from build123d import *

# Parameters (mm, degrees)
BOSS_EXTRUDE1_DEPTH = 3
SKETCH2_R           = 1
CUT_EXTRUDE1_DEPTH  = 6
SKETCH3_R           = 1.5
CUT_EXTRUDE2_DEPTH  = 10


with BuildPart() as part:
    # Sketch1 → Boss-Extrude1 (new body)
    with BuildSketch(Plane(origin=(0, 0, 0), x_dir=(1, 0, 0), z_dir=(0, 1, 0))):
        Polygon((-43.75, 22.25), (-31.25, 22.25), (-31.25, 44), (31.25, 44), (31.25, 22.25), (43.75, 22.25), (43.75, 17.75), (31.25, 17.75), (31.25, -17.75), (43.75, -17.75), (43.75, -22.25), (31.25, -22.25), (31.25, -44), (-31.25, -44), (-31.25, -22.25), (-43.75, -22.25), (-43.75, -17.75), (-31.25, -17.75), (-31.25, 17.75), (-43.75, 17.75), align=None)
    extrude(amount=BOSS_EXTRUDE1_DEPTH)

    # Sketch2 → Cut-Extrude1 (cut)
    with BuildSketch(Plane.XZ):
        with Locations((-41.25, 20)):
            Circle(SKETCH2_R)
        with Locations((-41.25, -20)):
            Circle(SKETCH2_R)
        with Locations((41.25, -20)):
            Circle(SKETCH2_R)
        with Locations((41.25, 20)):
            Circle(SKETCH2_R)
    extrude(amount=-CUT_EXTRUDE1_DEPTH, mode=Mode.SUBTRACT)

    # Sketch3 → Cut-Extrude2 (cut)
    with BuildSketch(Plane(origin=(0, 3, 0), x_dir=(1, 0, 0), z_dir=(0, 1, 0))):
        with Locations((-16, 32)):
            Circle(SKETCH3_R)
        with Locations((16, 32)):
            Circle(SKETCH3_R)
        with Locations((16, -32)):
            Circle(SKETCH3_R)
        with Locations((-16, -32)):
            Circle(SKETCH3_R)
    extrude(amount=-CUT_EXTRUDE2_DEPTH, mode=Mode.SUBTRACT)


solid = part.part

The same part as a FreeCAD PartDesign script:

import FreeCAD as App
import Part
import Sketcher
from FreeCAD import Vector


def add_polygon(sketch, points):
    """Adds a closed chain of lines whose ends are joined by coincident constraints."""
    first, n = sketch.GeometryCount, len(points)
    for a, b in zip(points, points[1:] + points[:1]):
        sketch.addGeometry(Part.LineSegment(App.Vector(*a, 0), App.Vector(*b, 0)), False)
    for i in range(n):
        sketch.addConstraint(Sketcher.Constraint("Coincident", first + i, 2, first + (i + 1) % n, 1))

doc = App.newDocument("Part")
params = doc.addObject("Spreadsheet::Sheet", "Params")
for row, (alias, value) in enumerate([
    ("sketch1_width", "12.5 mm"),
    ("sketch1_width2", "62.5 mm"),
    ("sketch1_height", "4.5 mm"),
    ("sketch1_height2", "35.5 mm"),
    ("pad1_length", "3 mm"),
    ("sketch2_diameter", "2 mm"),
    ("pocket1_length", "6 mm"),
    ("sketch3_diameter", "3 mm"),
    ("pocket2_length", "10 mm"),
], start=1):
    params.set(f"A{row}", alias)
    params.set(f"B{row}", "=" + value)
    params.setAlias(f"B{row}", alias)

body = doc.addObject("PartDesign::Body", "Body")

# Sketch on XZ plane
sketch1 = body.newObject("Sketcher::SketchObject", "Sketch")
sketch1.AttachmentSupport = (doc.getObject("XZ_Plane"), [""])
sketch1.MapMode = "FlatFace"
add_polygon(sketch1, [(-31.2, -22.2), (-43.8, -22.2), (-43.8, -17.8), (-31.2, -17.8), (-31.2, 17.8), (-43.8, 17.8), (-43.8, 22.2), (-31.2, 22.2), (-31.2, 44), (31.2, 44), (31.2, 22.2), (43.8, 22.2), (43.8, 17.8), (31.2, 17.8), (31.2, -17.8), (43.8, -17.8), (43.8, -22.2), (31.2, -22.2), (31.2, -44), (-31.2, -44)])  # lines 0-19
sketch1.addConstraint([
    Sketcher.Constraint("Horizontal", 0),
    Sketcher.Constraint("Vertical", 1),
    Sketcher.Constraint("Horizontal", 2),
    Sketcher.Constraint("Vertical", 3),
    Sketcher.Constraint("Horizontal", 4),
    Sketcher.Constraint("Vertical", 5),
    Sketcher.Constraint("Horizontal", 6),
    Sketcher.Constraint("Vertical", 7),
    Sketcher.Constraint("Horizontal", 8),
    Sketcher.Constraint("Vertical", 9),
    Sketcher.Constraint("Horizontal", 10),
    Sketcher.Constraint("Vertical", 11),
    Sketcher.Constraint("Horizontal", 12),
    Sketcher.Constraint("Vertical", 13),
    Sketcher.Constraint("Horizontal", 14),
    Sketcher.Constraint("Vertical", 15),
    Sketcher.Constraint("Horizontal", 16),
    Sketcher.Constraint("Vertical", 17),
    Sketcher.Constraint("Horizontal", 18),
    Sketcher.Constraint("Vertical", 19),
    Sketcher.Constraint("Symmetric", 0, 2, 10, 2, -1, 1),
    Sketcher.Constraint("Symmetric", 2, 2, 12, 2, -1, 1),
    Sketcher.Constraint("Symmetric", 4, 2, 14, 2, -1, 1),
    Sketcher.Constraint("Symmetric", 6, 2, 16, 2, -1, 1),
    Sketcher.Constraint("Symmetric", 8, 2, 18, 2, -1, 1),
    Sketcher.Constraint("Symmetric", 6, 2, 9, 2, -2),
    Sketcher.Constraint("Symmetric", 4, 2, 11, 2, -2),
    Sketcher.Constraint("Vertical", 3, 2, 6, 2),
    Sketcher.Constraint("DistanceX", 0, 2, 0, 1, 12.5),
    Sketcher.Constraint("DistanceX", 8, 1, 8, 2, 62.5),
    Sketcher.Constraint("DistanceY", 1, 1, 1, 2, 4.5),
    Sketcher.Constraint("DistanceY", 3, 1, 3, 2, 35.5),
    Sketcher.Constraint("DistanceY", -1, 1, 7, 2, 44.0),
])
sketch1.setExpression("Constraints[48]", "Params.sketch1_width")
sketch1.setExpression("Constraints[49]", "Params.sketch1_width2")
sketch1.setExpression("Constraints[50]", "Params.sketch1_height")
sketch1.setExpression("Constraints[51]", "Params.sketch1_height2")
pad1 = body.newObject("PartDesign::Pad", "Pad")
pad1.Profile = sketch1
pad1.setExpression("Length", "Params.pad1_length")
pad1.Reversed = True

# Sketch on XZ plane
sketch2 = body.newObject("Sketcher::SketchObject", "Sketch001")
sketch2.AttachmentSupport = (doc.getObject("XZ_Plane"), [""])
sketch2.MapMode = "FlatFace"
sketch2.addGeometry([
    Part.Circle(Vector(-41.2, 20, 0), Vector(0, 0, 1), 1),
    Part.Circle(Vector(-41.2, -20, 0), Vector(0, 0, 1), 1),
    Part.Circle(Vector(41.2, -20, 0), Vector(0, 0, 1), 1),
    Part.Circle(Vector(41.2, 20, 0), Vector(0, 0, 1), 1),
], False)
sketch2.addConstraint([
    Sketcher.Constraint("Equal", 0, 1),
    Sketcher.Constraint("Equal", 1, 2),
    Sketcher.Constraint("Equal", 2, 3),
    Sketcher.Constraint("Symmetric", 0, 3, 2, 3, -1, 1),
    Sketcher.Constraint("Symmetric", 1, 3, 3, 3, -1, 1),
    Sketcher.Constraint("Symmetric", 1, 3, 2, 3, -2),
    Sketcher.Constraint("Diameter", 0, 2.0),
    Sketcher.Constraint("DistanceY", -1, 1, 0, 3, 20.0),
    Sketcher.Constraint("DistanceX", 1, 3, 2, 3, 82.5),
])
sketch2.setExpression("Constraints[6]", "Params.sketch2_diameter")
pocket1 = body.newObject("PartDesign::Pocket", "Pocket")
pocket1.Profile = sketch2
pocket1.setExpression("Length", "Params.pocket1_length")

# Sketch on XZ plane
sketch3 = body.newObject("Sketcher::SketchObject", "Sketch002")
sketch3.AttachmentSupport = (doc.getObject("XZ_Plane"), [""])
sketch3.MapMode = "FlatFace"
sketch3.AttachmentOffset = App.Placement(Vector(0, 0, -3), App.Rotation())
sketch3.addGeometry([
    Part.Circle(Vector(-16, -32, 0), Vector(0, 0, 1), 1.5),
    Part.Circle(Vector(16, -32, 0), Vector(0, 0, 1), 1.5),
    Part.Circle(Vector(16, 32, 0), Vector(0, 0, 1), 1.5),
    Part.Circle(Vector(-16, 32, 0), Vector(0, 0, 1), 1.5),
], False)
sketch3.addConstraint([
    Sketcher.Constraint("Equal", 0, 1),
    Sketcher.Constraint("Equal", 1, 2),
    Sketcher.Constraint("Equal", 2, 3),
    Sketcher.Constraint("Symmetric", 0, 3, 2, 3, -1, 1),
    Sketcher.Constraint("Symmetric", 1, 3, 3, 3, -1, 1),
    Sketcher.Constraint("Symmetric", 0, 3, 1, 3, -2),
    Sketcher.Constraint("Diameter", 0, 3.0),
    Sketcher.Constraint("DistanceX", 0, 3, -1, 1, 16.0),
    Sketcher.Constraint("DistanceY", 0, 3, -1, 1, 32.0),
])
sketch3.setExpression("Constraints[6]", "Params.sketch3_diameter")
pocket2 = body.newObject("PartDesign::Pocket", "Pocket001")
pocket2.Profile = sketch3
pocket2.setExpression("Length", "Params.pocket2_length")
pocket2.Reversed = True

doc.recompute()
